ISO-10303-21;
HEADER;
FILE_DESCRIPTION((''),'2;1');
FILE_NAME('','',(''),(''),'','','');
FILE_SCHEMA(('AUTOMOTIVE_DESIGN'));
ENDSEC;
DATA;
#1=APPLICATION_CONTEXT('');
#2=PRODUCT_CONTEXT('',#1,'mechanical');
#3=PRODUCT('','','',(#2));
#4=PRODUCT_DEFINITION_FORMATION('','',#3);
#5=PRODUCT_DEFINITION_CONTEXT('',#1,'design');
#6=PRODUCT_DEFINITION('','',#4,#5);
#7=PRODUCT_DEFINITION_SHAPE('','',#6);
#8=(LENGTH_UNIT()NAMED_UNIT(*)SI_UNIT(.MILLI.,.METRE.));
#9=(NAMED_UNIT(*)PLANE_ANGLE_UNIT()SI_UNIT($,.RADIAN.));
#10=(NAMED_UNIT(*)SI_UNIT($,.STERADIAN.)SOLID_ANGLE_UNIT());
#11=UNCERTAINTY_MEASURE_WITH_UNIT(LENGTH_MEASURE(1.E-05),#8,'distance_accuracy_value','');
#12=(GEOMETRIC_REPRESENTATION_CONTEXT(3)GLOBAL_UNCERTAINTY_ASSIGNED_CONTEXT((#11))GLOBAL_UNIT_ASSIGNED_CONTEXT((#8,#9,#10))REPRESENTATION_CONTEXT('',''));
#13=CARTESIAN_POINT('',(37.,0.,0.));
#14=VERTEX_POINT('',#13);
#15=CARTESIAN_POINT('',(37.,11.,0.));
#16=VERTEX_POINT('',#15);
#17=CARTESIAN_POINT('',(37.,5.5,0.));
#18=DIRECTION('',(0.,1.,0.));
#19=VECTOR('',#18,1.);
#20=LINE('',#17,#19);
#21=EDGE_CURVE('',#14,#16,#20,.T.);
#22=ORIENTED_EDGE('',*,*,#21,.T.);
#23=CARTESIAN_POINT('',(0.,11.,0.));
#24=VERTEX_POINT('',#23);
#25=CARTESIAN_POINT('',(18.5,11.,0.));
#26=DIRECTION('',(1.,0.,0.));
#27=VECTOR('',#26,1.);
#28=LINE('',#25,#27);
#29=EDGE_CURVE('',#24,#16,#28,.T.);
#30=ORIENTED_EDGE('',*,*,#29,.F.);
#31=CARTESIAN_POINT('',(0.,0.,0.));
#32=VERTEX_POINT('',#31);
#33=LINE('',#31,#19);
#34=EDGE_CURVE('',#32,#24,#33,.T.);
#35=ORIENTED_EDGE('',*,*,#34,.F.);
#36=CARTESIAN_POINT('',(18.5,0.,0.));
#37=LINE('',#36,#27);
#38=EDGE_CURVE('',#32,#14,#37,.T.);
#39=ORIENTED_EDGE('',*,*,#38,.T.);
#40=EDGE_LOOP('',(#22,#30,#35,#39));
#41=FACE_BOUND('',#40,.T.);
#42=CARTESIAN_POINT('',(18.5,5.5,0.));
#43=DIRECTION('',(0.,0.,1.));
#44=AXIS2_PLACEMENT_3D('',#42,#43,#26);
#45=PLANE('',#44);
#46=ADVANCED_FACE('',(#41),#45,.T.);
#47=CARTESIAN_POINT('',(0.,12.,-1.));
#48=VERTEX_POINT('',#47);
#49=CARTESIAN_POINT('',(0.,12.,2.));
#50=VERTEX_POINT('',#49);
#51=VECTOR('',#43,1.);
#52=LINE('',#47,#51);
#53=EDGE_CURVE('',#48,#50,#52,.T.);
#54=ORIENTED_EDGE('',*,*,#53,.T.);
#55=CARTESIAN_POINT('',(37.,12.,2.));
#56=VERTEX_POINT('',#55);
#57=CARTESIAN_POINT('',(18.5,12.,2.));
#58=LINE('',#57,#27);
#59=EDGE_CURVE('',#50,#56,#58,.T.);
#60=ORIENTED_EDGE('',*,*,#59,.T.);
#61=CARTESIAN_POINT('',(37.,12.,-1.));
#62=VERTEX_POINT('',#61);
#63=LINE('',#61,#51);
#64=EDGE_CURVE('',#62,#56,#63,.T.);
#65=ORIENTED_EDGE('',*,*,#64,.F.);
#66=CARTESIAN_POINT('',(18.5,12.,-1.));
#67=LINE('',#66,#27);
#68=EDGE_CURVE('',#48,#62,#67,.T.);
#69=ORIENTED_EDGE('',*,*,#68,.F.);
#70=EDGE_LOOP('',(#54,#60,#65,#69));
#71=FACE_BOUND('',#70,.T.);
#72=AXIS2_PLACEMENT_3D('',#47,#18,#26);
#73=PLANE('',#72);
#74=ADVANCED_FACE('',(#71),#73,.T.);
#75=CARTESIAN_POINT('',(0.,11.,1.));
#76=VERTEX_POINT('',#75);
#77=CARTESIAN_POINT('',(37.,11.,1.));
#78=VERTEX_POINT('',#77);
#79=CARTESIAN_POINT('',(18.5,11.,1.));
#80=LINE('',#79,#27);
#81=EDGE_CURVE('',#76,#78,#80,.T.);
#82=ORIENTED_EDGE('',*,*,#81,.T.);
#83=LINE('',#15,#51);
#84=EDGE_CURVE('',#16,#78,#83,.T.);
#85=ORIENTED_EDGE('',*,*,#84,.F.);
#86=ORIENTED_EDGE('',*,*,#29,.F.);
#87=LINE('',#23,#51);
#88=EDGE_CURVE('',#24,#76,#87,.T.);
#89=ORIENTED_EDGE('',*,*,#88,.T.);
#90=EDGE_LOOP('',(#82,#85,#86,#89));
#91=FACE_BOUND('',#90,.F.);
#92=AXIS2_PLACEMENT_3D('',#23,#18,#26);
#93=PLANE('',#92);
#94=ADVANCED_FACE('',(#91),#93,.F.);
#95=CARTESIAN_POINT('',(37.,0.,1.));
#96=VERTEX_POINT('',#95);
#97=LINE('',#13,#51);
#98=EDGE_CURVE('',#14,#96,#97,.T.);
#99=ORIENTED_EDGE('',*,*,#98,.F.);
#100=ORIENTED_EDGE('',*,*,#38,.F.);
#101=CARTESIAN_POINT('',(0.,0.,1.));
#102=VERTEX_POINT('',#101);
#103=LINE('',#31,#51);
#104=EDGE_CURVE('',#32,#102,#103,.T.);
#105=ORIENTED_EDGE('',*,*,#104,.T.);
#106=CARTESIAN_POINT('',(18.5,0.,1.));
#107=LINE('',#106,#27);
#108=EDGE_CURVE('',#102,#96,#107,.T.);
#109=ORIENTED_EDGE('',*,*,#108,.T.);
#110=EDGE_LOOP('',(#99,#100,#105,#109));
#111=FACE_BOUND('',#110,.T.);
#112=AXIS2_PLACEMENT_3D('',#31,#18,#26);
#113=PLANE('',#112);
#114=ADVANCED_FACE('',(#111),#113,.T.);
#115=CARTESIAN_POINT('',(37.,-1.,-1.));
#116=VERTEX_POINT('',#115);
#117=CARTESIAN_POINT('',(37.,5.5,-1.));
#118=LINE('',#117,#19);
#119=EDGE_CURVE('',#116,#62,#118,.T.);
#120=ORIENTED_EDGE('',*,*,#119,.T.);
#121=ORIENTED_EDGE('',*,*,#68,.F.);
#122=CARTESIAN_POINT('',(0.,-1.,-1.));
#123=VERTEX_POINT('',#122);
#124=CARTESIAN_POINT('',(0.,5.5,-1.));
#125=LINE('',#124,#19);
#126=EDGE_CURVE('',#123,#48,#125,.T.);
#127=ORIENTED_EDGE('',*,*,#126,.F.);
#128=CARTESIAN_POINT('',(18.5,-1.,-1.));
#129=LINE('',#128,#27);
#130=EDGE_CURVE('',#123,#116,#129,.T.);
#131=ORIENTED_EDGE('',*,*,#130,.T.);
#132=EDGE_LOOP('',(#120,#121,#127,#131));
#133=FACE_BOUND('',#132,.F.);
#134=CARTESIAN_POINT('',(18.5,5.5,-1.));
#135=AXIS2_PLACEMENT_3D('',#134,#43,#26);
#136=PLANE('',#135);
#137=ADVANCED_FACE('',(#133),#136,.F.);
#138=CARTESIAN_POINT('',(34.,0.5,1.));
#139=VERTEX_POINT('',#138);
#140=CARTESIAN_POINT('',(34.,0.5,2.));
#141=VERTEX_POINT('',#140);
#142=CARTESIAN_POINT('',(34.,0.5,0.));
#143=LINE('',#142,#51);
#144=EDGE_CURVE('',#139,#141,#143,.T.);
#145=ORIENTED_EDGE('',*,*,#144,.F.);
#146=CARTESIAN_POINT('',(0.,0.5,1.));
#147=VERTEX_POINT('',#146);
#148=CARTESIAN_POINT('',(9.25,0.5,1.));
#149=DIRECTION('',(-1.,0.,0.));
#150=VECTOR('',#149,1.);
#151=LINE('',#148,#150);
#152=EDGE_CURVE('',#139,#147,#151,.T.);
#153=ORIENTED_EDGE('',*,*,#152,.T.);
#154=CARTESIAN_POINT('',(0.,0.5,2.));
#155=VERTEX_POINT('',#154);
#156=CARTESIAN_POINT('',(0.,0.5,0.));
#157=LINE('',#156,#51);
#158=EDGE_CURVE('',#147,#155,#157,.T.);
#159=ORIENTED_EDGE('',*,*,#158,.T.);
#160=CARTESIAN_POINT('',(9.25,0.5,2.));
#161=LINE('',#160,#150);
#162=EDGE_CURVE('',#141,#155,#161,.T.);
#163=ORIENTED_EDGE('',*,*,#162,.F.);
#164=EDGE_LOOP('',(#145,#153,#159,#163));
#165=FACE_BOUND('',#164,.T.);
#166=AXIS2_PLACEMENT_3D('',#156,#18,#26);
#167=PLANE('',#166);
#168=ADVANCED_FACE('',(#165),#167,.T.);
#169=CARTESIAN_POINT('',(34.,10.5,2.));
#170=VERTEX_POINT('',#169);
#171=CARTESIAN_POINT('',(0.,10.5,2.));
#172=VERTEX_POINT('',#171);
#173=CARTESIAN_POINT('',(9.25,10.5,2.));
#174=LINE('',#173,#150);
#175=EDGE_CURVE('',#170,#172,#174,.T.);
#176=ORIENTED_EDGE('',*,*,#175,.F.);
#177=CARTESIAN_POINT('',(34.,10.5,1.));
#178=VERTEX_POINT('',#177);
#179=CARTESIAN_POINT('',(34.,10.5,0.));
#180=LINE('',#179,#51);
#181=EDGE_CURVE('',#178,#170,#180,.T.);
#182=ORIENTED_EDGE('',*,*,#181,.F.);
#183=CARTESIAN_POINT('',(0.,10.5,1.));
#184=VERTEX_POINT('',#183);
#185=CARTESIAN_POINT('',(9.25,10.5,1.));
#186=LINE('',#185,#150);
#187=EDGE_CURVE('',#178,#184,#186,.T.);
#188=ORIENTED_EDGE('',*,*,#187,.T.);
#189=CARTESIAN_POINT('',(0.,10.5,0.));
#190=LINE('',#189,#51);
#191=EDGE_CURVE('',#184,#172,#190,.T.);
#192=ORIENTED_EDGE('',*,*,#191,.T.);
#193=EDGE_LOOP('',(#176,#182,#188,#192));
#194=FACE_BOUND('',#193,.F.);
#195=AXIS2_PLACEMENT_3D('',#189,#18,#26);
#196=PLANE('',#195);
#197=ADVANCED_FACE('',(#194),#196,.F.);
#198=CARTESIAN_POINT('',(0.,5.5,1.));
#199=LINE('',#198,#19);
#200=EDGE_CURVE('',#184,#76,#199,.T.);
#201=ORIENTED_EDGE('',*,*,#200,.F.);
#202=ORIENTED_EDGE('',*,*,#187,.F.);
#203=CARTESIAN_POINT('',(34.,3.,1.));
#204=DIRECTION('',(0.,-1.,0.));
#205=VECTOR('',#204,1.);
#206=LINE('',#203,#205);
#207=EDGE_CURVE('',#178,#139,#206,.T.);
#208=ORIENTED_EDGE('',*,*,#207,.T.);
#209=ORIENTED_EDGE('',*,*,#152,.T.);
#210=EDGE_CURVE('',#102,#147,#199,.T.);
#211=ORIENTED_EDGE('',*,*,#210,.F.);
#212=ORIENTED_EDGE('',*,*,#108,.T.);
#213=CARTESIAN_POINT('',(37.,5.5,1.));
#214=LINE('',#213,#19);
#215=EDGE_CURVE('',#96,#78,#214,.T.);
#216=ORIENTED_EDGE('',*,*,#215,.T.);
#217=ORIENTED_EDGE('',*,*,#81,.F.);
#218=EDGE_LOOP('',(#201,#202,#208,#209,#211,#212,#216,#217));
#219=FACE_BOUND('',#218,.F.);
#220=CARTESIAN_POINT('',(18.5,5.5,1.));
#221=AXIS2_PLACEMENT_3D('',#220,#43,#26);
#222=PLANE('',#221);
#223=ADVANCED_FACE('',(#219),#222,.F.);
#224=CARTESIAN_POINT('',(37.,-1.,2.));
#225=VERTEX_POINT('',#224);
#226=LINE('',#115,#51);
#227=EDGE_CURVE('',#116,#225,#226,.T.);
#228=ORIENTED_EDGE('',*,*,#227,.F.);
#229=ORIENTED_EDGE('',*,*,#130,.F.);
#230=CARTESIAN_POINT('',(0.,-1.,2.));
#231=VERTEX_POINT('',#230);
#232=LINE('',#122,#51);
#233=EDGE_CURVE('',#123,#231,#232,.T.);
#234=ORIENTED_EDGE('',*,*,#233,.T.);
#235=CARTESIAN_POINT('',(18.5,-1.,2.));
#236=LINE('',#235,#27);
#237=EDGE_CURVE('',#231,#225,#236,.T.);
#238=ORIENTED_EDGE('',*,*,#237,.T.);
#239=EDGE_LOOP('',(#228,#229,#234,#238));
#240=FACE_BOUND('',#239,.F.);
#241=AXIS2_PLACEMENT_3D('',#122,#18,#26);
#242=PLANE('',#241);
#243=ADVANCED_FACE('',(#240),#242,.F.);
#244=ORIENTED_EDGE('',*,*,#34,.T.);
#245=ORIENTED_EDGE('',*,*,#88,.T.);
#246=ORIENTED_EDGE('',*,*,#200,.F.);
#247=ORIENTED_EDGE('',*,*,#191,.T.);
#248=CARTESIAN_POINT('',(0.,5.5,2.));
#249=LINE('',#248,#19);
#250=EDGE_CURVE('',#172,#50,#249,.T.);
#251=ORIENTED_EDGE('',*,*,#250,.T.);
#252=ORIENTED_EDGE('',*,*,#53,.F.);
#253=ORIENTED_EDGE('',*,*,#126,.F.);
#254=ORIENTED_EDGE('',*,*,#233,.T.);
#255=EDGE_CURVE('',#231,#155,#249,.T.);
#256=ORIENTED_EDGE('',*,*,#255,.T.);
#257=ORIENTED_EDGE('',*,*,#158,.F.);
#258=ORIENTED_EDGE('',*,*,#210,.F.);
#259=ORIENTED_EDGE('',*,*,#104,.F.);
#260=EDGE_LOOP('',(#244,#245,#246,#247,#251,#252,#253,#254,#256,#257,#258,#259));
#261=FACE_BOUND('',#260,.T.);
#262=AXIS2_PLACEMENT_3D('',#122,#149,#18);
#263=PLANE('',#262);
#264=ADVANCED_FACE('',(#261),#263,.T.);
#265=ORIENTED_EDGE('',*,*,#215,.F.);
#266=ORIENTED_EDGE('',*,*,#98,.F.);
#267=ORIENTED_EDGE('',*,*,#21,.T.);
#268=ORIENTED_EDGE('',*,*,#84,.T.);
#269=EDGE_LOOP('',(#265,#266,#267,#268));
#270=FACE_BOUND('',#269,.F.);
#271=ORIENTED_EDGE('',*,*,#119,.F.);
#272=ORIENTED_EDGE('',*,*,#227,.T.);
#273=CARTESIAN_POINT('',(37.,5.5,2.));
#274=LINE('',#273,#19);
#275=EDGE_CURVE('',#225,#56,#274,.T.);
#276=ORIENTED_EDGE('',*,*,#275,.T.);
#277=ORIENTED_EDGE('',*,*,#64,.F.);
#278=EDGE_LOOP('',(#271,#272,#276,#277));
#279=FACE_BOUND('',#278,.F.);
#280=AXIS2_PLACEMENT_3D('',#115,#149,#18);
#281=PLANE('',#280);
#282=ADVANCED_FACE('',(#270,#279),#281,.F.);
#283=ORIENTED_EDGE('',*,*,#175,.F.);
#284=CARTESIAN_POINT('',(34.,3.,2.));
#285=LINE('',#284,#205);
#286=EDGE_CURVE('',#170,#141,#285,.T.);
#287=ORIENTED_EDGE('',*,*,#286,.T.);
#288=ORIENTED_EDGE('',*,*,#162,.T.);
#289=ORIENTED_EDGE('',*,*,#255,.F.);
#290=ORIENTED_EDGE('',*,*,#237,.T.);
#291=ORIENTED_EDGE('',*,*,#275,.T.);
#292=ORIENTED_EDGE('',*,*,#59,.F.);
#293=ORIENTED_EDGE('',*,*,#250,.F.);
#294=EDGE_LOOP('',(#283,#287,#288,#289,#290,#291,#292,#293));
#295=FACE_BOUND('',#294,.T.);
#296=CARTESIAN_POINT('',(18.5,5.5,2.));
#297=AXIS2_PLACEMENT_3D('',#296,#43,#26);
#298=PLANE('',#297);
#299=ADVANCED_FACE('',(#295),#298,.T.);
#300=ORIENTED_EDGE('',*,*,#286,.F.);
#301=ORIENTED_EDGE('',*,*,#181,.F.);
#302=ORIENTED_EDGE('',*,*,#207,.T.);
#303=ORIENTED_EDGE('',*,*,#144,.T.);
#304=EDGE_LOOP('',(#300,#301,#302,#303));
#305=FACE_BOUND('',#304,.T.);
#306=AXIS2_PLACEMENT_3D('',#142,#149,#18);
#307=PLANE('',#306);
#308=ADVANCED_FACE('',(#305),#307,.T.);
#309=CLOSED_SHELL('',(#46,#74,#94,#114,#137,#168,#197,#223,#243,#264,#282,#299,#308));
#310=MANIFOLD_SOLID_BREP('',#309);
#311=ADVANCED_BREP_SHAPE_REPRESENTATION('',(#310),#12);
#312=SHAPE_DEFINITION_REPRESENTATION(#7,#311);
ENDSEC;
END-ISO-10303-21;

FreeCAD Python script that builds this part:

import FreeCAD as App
import Part
import Sketcher

V = App.Vector


def add_polygon(sketch, points):
    """Adds a closed chain of lines whose ends are joined by coincident constraints."""
    first, n = sketch.GeometryCount, len(points)
    for a, b in zip(points, points[1:] + points[:1]):
        sketch.addGeometry(Part.LineSegment(App.Vector(*a, 0), App.Vector(*b, 0)), False)
    for i in range(n):
        sketch.addConstraint(Sketcher.Constraint("Coincident", first + i, 2, first + (i + 1) % n, 1))

doc = App.newDocument("Part")
body = doc.addObject("PartDesign::Body", "Body")

# Sketch on XY plane
sketch1 = doc.addObject("Sketcher::SketchObject", "Sketch")
body.addObject(sketch1)
sketch1.AttachmentSupport = (doc.XY_Plane, [""])
sketch1.MapMode = "FlatFace"
add_polygon(sketch1, [(0, 10.5), (0, 0.5), (34, 0.5), (34, 10.5)])  # lines 0-3
sketch1.addConstraint([
    Sketcher.Constraint("Vertical", 0),
    Sketcher.Constraint("Horizontal", 1),
    Sketcher.Constraint("Vertical", 2),
    Sketcher.Constraint("Horizontal", 3),
    Sketcher.Constraint("PointOnObject", 0, 2, -2),
    Sketcher.Constraint("DistanceX", 1, 1, 1, 2, 34.0),
    Sketcher.Constraint("DistanceY", 0, 2, 0, 1, 10.0),
    Sketcher.Constraint("DistanceY", -1, 1, 0, 2, 0.5),
])
pad1 = doc.addObject("PartDesign::Pad", "Pad")
body.addObject(pad1)
pad1.Profile = sketch1
pad1.Length = 3
body2 = doc.addObject("PartDesign::Body", "Body001")

# Sketch on XY plane
sketch2 = doc.addObject("Sketcher::SketchObject", "Sketch001")
body2.addObject(sketch2)
sketch2.AttachmentSupport = (doc.getObject("XY_Plane001"), [""])
sketch2.MapMode = "FlatFace"
add_polygon(sketch2, [(0, 11), (0, 0), (37, 0), (37, 11)])  # lines 0-3
sketch2.addConstraint([
    Sketcher.Constraint("Vertical", 0),
    Sketcher.Constraint("Horizontal", 1),
    Sketcher.Constraint("Vertical", 2),
    Sketcher.Constraint("Horizontal", 3),
    Sketcher.Constraint("Coincident", 0, 2, -1, 1),
    Sketcher.Constraint("DistanceX", 1, 1, 1, 2, 37.0),
    Sketcher.Constraint("DistanceY", 0, 2, 0, 1, 11.0),
])
pad2 = doc.addObject("PartDesign::Pad", "Pad001")
body2.addObject(pad2)
pad2.Profile = sketch2
pad2.Length = 1
body3 = doc.addObject("PartDesign::Body", "Body002")

# Sketch on XY plane
sketch3 = doc.addObject("Sketcher::SketchObject", "Sketch002")
body3.addObject(sketch3)
sketch3.AttachmentSupport = (doc.getObject("XY_Plane002"), [""])
sketch3.MapMode = "FlatFace"
sketch3.AttachmentOffset = App.Placement(V(0, 0, -1), App.Rotation())
add_polygon(sketch3, [(0, 12), (0, -1), (37, -1), (37, 12)])  # lines 0-3
sketch3.addConstraint([
    Sketcher.Constraint("Vertical", 0),
    Sketcher.Constraint("Horizontal", 1),
    Sketcher.Constraint("Vertical", 2),
    Sketcher.Constraint("Horizontal", 3),
    Sketcher.Constraint("PointOnObject", 0, 2, -2),
    Sketcher.Constraint("DistanceX", 1, 1, 1, 2, 37.0),
    Sketcher.Constraint("DistanceY", 0, 2, 0, 1, 13.0),
    Sketcher.Constraint("DistanceY", 0, 2, -1, 1, 1.0),
])
pad3 = doc.addObject("PartDesign::Pad", "Pad002")
body3.addObject(pad3)
pad3.Profile = sketch3
pad3.Length = 3
doc.recompute()

boolean = doc.addObject("PartDesign::Boolean", "Boolean")
body3.addObject(boolean)
boolean.Type = "Cut"
boolean.addObjects([body2])
doc.recompute()

boolean2 = doc.addObject("PartDesign::Boolean", "Boolean001")
body3.addObject(boolean2)
boolean2.Type = "Cut"
boolean2.addObjects([body])

doc.recompute()
